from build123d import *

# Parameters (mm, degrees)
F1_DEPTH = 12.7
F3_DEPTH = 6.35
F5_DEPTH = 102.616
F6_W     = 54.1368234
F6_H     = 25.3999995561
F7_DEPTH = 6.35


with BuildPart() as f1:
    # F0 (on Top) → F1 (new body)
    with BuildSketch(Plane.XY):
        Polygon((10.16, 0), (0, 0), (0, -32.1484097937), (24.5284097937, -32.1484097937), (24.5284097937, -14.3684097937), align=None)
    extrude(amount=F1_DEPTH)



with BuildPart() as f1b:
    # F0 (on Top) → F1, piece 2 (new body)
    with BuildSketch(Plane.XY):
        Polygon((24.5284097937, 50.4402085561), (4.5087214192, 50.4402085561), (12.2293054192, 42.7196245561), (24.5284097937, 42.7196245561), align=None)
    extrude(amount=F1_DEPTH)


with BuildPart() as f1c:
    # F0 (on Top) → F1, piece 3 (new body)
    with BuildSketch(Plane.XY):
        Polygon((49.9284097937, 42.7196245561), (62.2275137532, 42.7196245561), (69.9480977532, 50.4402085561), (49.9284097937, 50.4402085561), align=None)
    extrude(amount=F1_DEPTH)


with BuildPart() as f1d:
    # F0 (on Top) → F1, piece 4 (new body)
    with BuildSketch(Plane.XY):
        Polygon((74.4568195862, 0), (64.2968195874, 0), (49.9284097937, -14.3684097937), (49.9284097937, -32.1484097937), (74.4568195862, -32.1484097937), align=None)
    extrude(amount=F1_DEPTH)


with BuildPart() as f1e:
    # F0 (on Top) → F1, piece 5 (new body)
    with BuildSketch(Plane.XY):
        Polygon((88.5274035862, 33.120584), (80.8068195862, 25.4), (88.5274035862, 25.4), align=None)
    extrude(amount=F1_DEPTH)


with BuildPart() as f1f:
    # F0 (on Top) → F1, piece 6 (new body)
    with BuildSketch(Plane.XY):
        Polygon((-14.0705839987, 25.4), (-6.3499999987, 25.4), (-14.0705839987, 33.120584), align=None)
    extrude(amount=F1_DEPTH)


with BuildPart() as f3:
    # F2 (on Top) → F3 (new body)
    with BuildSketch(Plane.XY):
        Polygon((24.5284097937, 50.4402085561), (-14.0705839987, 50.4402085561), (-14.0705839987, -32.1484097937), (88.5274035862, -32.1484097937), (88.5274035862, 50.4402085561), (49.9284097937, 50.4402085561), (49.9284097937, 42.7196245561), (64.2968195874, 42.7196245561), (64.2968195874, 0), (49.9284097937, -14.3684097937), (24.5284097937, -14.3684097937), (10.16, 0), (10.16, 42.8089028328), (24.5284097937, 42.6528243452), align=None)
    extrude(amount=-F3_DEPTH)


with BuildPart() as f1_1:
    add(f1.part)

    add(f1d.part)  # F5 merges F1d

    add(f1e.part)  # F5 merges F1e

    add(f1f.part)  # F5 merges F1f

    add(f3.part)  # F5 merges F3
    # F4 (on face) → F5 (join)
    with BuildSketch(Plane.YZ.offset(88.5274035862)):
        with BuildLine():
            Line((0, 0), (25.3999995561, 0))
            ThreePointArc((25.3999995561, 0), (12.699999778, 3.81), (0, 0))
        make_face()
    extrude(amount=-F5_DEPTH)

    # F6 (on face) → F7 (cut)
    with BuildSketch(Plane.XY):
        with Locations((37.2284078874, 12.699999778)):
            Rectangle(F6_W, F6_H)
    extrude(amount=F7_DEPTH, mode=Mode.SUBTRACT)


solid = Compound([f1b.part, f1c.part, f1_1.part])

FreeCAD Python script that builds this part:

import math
import FreeCAD as App
import Part
import Sketcher
from FreeCAD import Vector
Q = App.Units.Quantity

doc = App.newDocument("Part")
body = doc.addObject("PartDesign::Body", "Body")

sketch1 = doc.addObject("Sketcher::SketchObject", "Sketch")
body.addObject(sketch1)
sketch1.AttachmentSupport = (doc.XY_Plane, [""])
sketch1.MapMode = "FlatFace"
sketch1.addGeometry(Part.LineSegment(Vector(10, 0, 0), Vector(0, 0, 0)), False)
sketch1.addGeometry(Part.LineSegment(Vector(0, 0, 0), Vector(0, -32, 0)), False)
sketch1.addGeometry(Part.LineSegment(Vector(0, -32, 0), Vector(25, -32, 0)), False)
sketch1.addGeometry(Part.LineSegment(Vector(25, -32, 0), Vector(25, -14, 0)), False)
sketch1.addGeometry(Part.LineSegment(Vector(25, -14, 0), Vector(10, 0, 0)), False)
sketch1.addConstraint(Sketcher.Constraint("Coincident", 0, 2, 1, 1))
sketch1.addConstraint(Sketcher.Constraint("Coincident", 1, 2, 2, 1))
sketch1.addConstraint(Sketcher.Constraint("Coincident", 2, 2, 3, 1))
sketch1.addConstraint(Sketcher.Constraint("Coincident", 3, 2, 4, 1))
sketch1.addConstraint(Sketcher.Constraint("Coincident", 4, 2, 0, 1))
sketch1.addConstraint(Sketcher.Constraint("Horizontal", 0))
sketch1.addConstraint(Sketcher.Constraint("Vertical", 1))
sketch1.addConstraint(Sketcher.Constraint("Horizontal", 2))
sketch1.addConstraint(Sketcher.Constraint("Vertical", 3))
sketch1.addConstraint(Sketcher.Constraint("Coincident", 0, 2, -1, 1))
sketch1.addConstraint(Sketcher.Constraint("DistanceX", 0, 2, 0, 1, Q("0.4 in")))
sketch1.addConstraint(Sketcher.Constraint("DistanceY", 3, 1, 3, 2, Q("0.7 in")))
sketch1.addConstraint(Sketcher.Constraint("Angle", 4, Q("135 deg")))
sketch1.addConstraint(Sketcher.Constraint("Distance", 4, Q("0.8 in")))
pad1 = doc.addObject("PartDesign::Pad", "Pad")
body.addObject(pad1)
pad1.Profile = sketch1
pad1.Length = Q("0.5 in")
body2 = doc.addObject("PartDesign::Body", "Body001")

sketch2 = doc.addObject("Sketcher::SketchObject", "Sketch001")
body2.addObject(sketch2)
sketch2.AttachmentSupport = (doc.getObject("XY_Plane001"), [""])
sketch2.MapMode = "FlatFace"
sketch2.addGeometry(Part.LineSegment(Vector(25, 50, 0), Vector(5, 50, 0)), False)
sketch2.addGeometry(Part.LineSegment(Vector(5, 50, 0), Vector(12, 43, 0)), False)
sketch2.addGeometry(Part.LineSegment(Vector(12, 43, 0), Vector(25, 43, 0)), False)
sketch2.addGeometry(Part.LineSegment(Vector(25, 43, 0), Vector(25, 50, 0)), False)
sketch2.addConstraint(Sketcher.Constraint("Coincident", 0, 2, 1, 1))
sketch2.addConstraint(Sketcher.Constraint("Coincident", 1, 2, 2, 1))
sketch2.addConstraint(Sketcher.Constraint("Coincident", 2, 2, 3, 1))
sketch2.addConstraint(Sketcher.Constraint("Coincident", 3, 2, 0, 1))
sketch2.addConstraint(Sketcher.Constraint("Horizontal", 0))
sketch2.addConstraint(Sketcher.Constraint("Horizontal", 2))
sketch2.addConstraint(Sketcher.Constraint("Vertical", 3))
sketch2.addConstraint(Sketcher.Constraint("Angle", 1, Q("-45 deg")))
sketch2.addConstraint(Sketcher.Constraint("DistanceX", 0, 2, 0, 1, Q("20.019688 mm")))
sketch2.addConstraint(Sketcher.Constraint("DistanceX", 2, 1, 2, 2, Q("12.299104 mm")))
sketch2.addConstraint(Sketcher.Constraint("DistanceX", -1, 1, 0, 2, Q("4.508721 mm")))
sketch2.addConstraint(Sketcher.Constraint("DistanceY", -1, 1, 0, 2, Q("50.440209 mm")))
pad2 = doc.addObject("PartDesign::Pad", "Pad001")
body2.addObject(pad2)
pad2.Profile = sketch2
pad2.Length = Q("0.5 in")
body3 = doc.addObject("PartDesign::Body", "Body002")

sketch3 = doc.addObject("Sketcher::SketchObject", "Sketch002")
body3.addObject(sketch3)
sketch3.AttachmentSupport = (doc.getObject("XY_Plane002"), [""])
sketch3.MapMode = "FlatFace"
sketch3.addGeometry(Part.LineSegment(Vector(50, 43, 0), Vector(62, 43, 0)), False)
sketch3.addGeometry(Part.LineSegment(Vector(62, 43, 0), Vector(70, 50, 0)), False)
sketch3.addGeometry(Part.LineSegment(Vector(70, 50, 0), Vector(50, 50, 0)), False)
sketch3.addGeometry(Part.LineSegment(Vector(50, 50, 0), Vector(50, 43, 0)), False)
sketch3.addConstraint(Sketcher.Constraint("Coincident", 0, 2, 1, 1))
sketch3.addConstraint(Sketcher.Constraint("Coincident", 1, 2, 2, 1))
sketch3.addConstraint(Sketcher.Constraint("Coincident", 2, 2, 3, 1))
sketch3.addConstraint(Sketcher.Constraint("Coincident", 3, 2, 0, 1))
sketch3.addConstraint(Sketcher.Constraint("Horizontal", 0))
sketch3.addConstraint(Sketcher.Constraint("Horizontal", 2))
sketch3.addConstraint(Sketcher.Constraint("Vertical", 3))
sketch3.addConstraint(Sketcher.Constraint("Angle", 1, Q("45 deg")))
sketch3.addConstraint(Sketcher.Constraint("DistanceX", 0, 1, 0, 2, Q("12.299104 mm")))
sketch3.addConstraint(Sketcher.Constraint("DistanceX", 2, 2, 2, 1, Q("20.019688 mm")))
sketch3.addConstraint(Sketcher.Constraint("DistanceY", -1, 1, 1, 2, Q("50.440209 mm")))
sketch3.addConstraint(Sketcher.Constraint("DistanceX", -1, 1, 2, 2, Q("49.92841 mm")))
pad3 = doc.addObject("PartDesign::Pad", "Pad002")
body3.addObject(pad3)
pad3.Profile = sketch3
pad3.Length = Q("0.5 in")
body4 = doc.addObject("PartDesign::Body", "Body003")

sketch4 = doc.addObject("Sketcher::SketchObject", "Sketch003")
body4.addObject(sketch4)
sketch4.AttachmentSupport = (doc.getObject("XY_Plane003"), [""])
sketch4.MapMode = "FlatFace"
sketch4.addGeometry(Part.LineSegment(Vector(74, 0, 0), Vector(64, 0, 0)), False)
sketch4.addGeometry(Part.LineSegment(Vector(64, 0, 0), Vector(50, -14, 0)), False)
sketch4.addGeometry(Part.LineSegment(Vector(50, -14, 0), Vector(50, -32, 0)), False)
sketch4.addGeometry(Part.LineSegment(Vector(50, -32, 0), Vector(74, -32, 0)), False)
sketch4.addGeometry(Part.LineSegment(Vector(74, -32, 0), Vector(74, 0, 0)), False)
sketch4.addConstraint(Sketcher.Constraint("Coincident", 0, 2, 1, 1))
sketch4.addConstraint(Sketcher.Constraint("Coincident", 1, 2, 2, 1))
sketch4.addConstraint(Sketcher.Constraint("Coincident", 2, 2, 3, 1))
sketch4.addConstraint(Sketcher.Constraint("Coincident", 3, 2, 4, 1))
sketch4.addConstraint(Sketcher.Constraint("Coincident", 4, 2, 0, 1))
sketch4.addConstraint(Sketcher.Constraint("Horizontal", 0))
sketch4.addConstraint(Sketcher.Constraint("Vertical", 2))
sketch4.addConstraint(Sketcher.Constraint("Horizontal", 3))
sketch4.addConstraint(Sketcher.Constraint("Vertical", 4))
sketch4.addConstraint(Sketcher.Constraint("PointOnObject", 0, 2, -1))
sketch4.addConstraint(Sketcher.Constraint("DistanceX", 0, 2, 0, 1, Q("0.4 in")))
sketch4.addConstraint(Sketcher.Constraint("DistanceY", 2, 2, 2, 1, Q("0.7 in")))
sketch4.addConstraint(Sketcher.Constraint("Angle", 1, Q("-135 deg")))
sketch4.addConstraint(Sketcher.Constraint("Distance", 1, Q("0.8 in")))
sketch4.addConstraint(Sketcher.Constraint("DistanceX", -1, 1, 0, 2, Q("64.29682 mm")))
pad4 = doc.addObject("PartDesign::Pad", "Pad003")
body4.addObject(pad4)
pad4.Profile = sketch4
pad4.Length = Q("0.5 in")
body5 = doc.addObject("PartDesign::Body", "Body004")

sketch5 = doc.addObject("Sketcher::SketchObject", "Sketch004")
body5.addObject(sketch5)
sketch5.AttachmentSupport = (doc.getObject("XY_Plane004"), [""])
sketch5.MapMode = "FlatFace"
sketch5.addGeometry(Part.LineSegment(Vector(89, 33, 0), Vector(81, 25, 0)), False)
sketch5.addGeometry(Part.LineSegment(Vector(81, 25, 0), Vector(89, 25, 0)), False)
sketch5.addGeometry(Part.LineSegment(Vector(89, 25, 0), Vector(89, 33, 0)), False)
sketch5.addConstraint(Sketcher.Constraint("Coincident", 0, 2, 1, 1))
sketch5.addConstraint(Sketcher.Constraint("Coincident", 1, 2, 2, 1))
sketch5.addConstraint(Sketcher.Constraint("Coincident", 2, 2, 0, 1))
sketch5.addConstraint(Sketcher.Constraint("Horizontal", 1))
sketch5.addConstraint(Sketcher.Constraint("Vertical", 2))
sketch5.addConstraint(Sketcher.Constraint("Equal", 1, 2))
sketch5.addConstraint(Sketcher.Constraint("DistanceY", -1, 1, 0, 2, Q("1 in")))
sketch5.addConstraint(Sketcher.Constraint("DistanceX", 1, 1, 1, 2, Q("7.720584 mm")))
sketch5.addConstraint(Sketcher.Constraint("DistanceX", -1, 1, 0, 2, Q("80.80682 mm")))
pad5 = doc.addObject("PartDesign::Pad", "Pad004")
body5.addObject(pad5)
pad5.Profile = sketch5
pad5.Length = Q("0.5 in")
body6 = doc.addObject("PartDesign::Body", "Body005")

sketch6 = doc.addObject("Sketcher::SketchObject", "Sketch005")
body6.addObject(sketch6)
sketch6.AttachmentSupport = (doc.getObject("XY_Plane005"), [""])
sketch6.MapMode = "FlatFace"
sketch6.addGeometry(Part.LineSegment(Vector(-14, 25, 0), Vector(-6, 25, 0)), False)
sketch6.addGeometry(Part.LineSegment(Vector(-6, 25, 0), Vector(-14, 33, 0)), False)
sketch6.addGeometry(Part.LineSegment(Vector(-14, 33, 0), Vector(-14, 25, 0)), False)
sketch6.addConstraint(Sketcher.Constraint("Coincident", 0, 2, 1, 1))
sketch6.addConstraint(Sketcher.Constraint("Coincident", 1, 2, 2, 1))
sketch6.addConstraint(Sketcher.Constraint("Coincident", 2, 2, 0, 1))
sketch6.addConstraint(Sketcher.Constraint("Horizontal", 0))
sketch6.addConstraint(Sketcher.Constraint("Vertical", 2))
sketch6.addConstraint(Sketcher.Constraint("Equal", 0, 2))
sketch6.addConstraint(Sketcher.Constraint("DistanceY", -1, 1, 0, 2, Q("1 in")))
sketch6.addConstraint(Sketcher.Constraint("DistanceX", 0, 2, -1, 1, Q("0.25 in")))
sketch6.addConstraint(Sketcher.Constraint("DistanceX", 0, 1, 0, 2, Q("7.720584 mm")))
pad6 = doc.addObject("PartDesign::Pad", "Pad005")
body6.addObject(pad6)
pad6.Profile = sketch6
pad6.Length = Q("0.5 in")
body7 = doc.addObject("PartDesign::Body", "Body006")

sketch7 = doc.addObject("Sketcher::SketchObject", "Sketch006")
body7.addObject(sketch7)
sketch7.AttachmentSupport = (doc.getObject("XY_Plane006"), [""])
sketch7.MapMode = "FlatFace"
sketch7.addGeometry(Part.LineSegment(Vector(25, 50, 0), Vector(-14, 50, 0)), False)
sketch7.addGeometry(Part.LineSegment(Vector(-14, 50, 0), Vector(-14, -32, 0)), False)
sketch7.addGeometry(Part.LineSegment(Vector(-14, -32, 0), Vector(89, -32, 0)), False)
sketch7.addGeometry(Part.LineSegment(Vector(89, -32, 0), Vector(89, 50, 0)), False)
sketch7.addGeometry(Part.LineSegment(Vector(89, 50, 0), Vector(50, 50, 0)), False)
sketch7.addGeometry(Part.LineSegment(Vector(50, 50, 0), Vector(50, 43, 0)), False)
sketch7.addGeometry(Part.LineSegment(Vector(50, 43, 0), Vector(64, 43, 0)), False)
sketch7.addGeometry(Part.LineSegment(Vector(64, 43, 0), Vector(64, 0, 0)), False)
sketch7.addGeometry(Part.LineSegment(Vector(64, 0, 0), Vector(50, -14, 0)), False)
sketch7.addGeometry(Part.LineSegment(Vector(50, -14, 0), Vector(25, -14, 0)), False)
sketch7.addGeometry(Part.LineSegment(Vector(25, -14, 0), Vector(10, 0, 0)), False)
sketch7.addGeometry(Part.LineSegment(Vector(10, 0, 0), Vector(10, 43, 0)), False)
sketch7.addGeometry(Part.LineSegment(Vector(10, 43, 0), Vector(25, 43, 0)), False)
sketch7.addGeometry(Part.LineSegment(Vector(25, 43, 0), Vector(25, 50, 0)), False)
sketch7.addConstraint(Sketcher.Constraint("Coincident", 0, 2, 1, 1))
sketch7.addConstraint(Sketcher.Constraint("Coincident", 1, 2, 2, 1))
sketch7.addConstraint(Sketcher.Constraint("Coincident", 2, 2, 3, 1))
sketch7.addConstraint(Sketcher.Constraint("Coincident", 3, 2, 4, 1))
sketch7.addConstraint(Sketcher.Constraint("Coincident", 4, 2, 5, 1))
sketch7.addConstraint(Sketcher.Constraint("Coincident", 5, 2, 6, 1))
sketch7.addConstraint(Sketcher.Constraint("Coincident", 6, 2, 7, 1))
sketch7.addConstraint(Sketcher.Constraint("Coincident", 7, 2, 8, 1))
sketch7.addConstraint(Sketcher.Constraint("Coincident", 8, 2, 9, 1))
sketch7.addConstraint(Sketcher.Constraint("Coincident", 9, 2, 10, 1))
sketch7.addConstraint(Sketcher.Constraint("Coincident", 10, 2, 11, 1))
sketch7.addConstraint(Sketcher.Constraint("Coincident", 11, 2, 12, 1))
sketch7.addConstraint(Sketcher.Constraint("Coincident", 12, 2, 13, 1))
sketch7.addConstraint(Sketcher.Constraint("Coincident", 13, 2, 0, 1))
sketch7.addConstraint(Sketcher.Constraint("Horizontal", 0))
sketch7.addConstraint(Sketcher.Constraint("Vertical", 1))
sketch7.addConstraint(Sketcher.Constraint("Horizontal", 2))
sketch7.addConstraint(Sketcher.Constraint("Vertical", 3))
sketch7.addConstraint(Sketcher.Constraint("Horizontal", 4))
sketch7.addConstraint(Sketcher.Constraint("Vertical", 5))
sketch7.addConstraint(Sketcher.Constraint("Horizontal", 6))
sketch7.addConstraint(Sketcher.Constraint("Vertical", 7))
sketch7.addConstraint(Sketcher.Constraint("Horizontal", 9))
sketch7.addConstraint(Sketcher.Constraint("Vertical", 11))
sketch7.addConstraint(Sketcher.Constraint("Vertical", 13))
sketch7.addConstraint(Sketcher.Constraint("PointOnObject", 7, 2, -1))
sketch7.addConstraint(Sketcher.Constraint("PointOnObject", 10, 2, -1))
sketch7.addConstraint(Sketcher.Constraint("Perpendicular", 8, 10))
sketch7.addConstraint(Sketcher.Constraint("Horizontal", 0, 2, 3, 2))
sketch7.addConstraint(Sketcher.Constraint("Vertical", 5, 2, 8, 2))
sketch7.addConstraint(Sketcher.Constraint("Vertical", 9, 2, 12, 2))
sketch7.addConstraint(Sketcher.Constraint("Equal", 0, 4))
sketch7.addConstraint(Sketcher.Constraint("Equal", 8, 10))
sketch7.addConstraint(Sketcher.Constraint("DistanceX", 9, 2, 9, 1, Q("1 in")))
sketch7.addConstraint(Sketcher.Constraint("Distance", 8, Q("0.8 in")))
sketch7.addConstraint(Sketcher.Constraint("DistanceX", -1, 1, 10, 2, Q("0.4 in")))
sketch7.addConstraint(Sketcher.Constraint("DistanceY", 2, 2, 8, 2, Q("0.7 in")))
sketch7.addConstraint(Sketcher.Constraint("DistanceY", 1, 2, 1, 1, Q("82.588618 mm")))
sketch7.addConstraint(Sketcher.Constraint("DistanceY", 12, 2, 5, 2, Q("0.0668 mm")))
sketch7.addConstraint(Sketcher.Constraint("DistanceX", 0, 2, 0, 1, Q("38.598994 mm")))
sketch7.addConstraint(Sketcher.Constraint("DistanceY", 5, 2, 5, 1, Q("7.720584 mm")))
sketch7.addConstraint(Sketcher.Constraint("DistanceY", 11, 1, 11, 2, Q("42.808903 mm")))
pad7 = doc.addObject("PartDesign::Pad", "Pad006")
body7.addObject(pad7)
pad7.Profile = sketch7
pad7.Length = Q("0.25 in")
pad7.Reversed = True
body.AllowCompound = True
doc.recompute()

boolean = doc.addObject("PartDesign::Boolean", "Boolean")
body.addObject(boolean)
boolean.Type = "Fuse"
boolean.addObjects([body4])
doc.recompute()

boolean2 = doc.addObject("PartDesign::Boolean", "Boolean001")
body.addObject(boolean2)
boolean2.Type = "Fuse"
boolean2.addObjects([body5])
doc.recompute()

boolean3 = doc.addObject("PartDesign::Boolean", "Boolean002")
body.addObject(boolean3)
boolean3.Type = "Fuse"
boolean3.addObjects([body6])
doc.recompute()

boolean4 = doc.addObject("PartDesign::Boolean", "Boolean003")
body.addObject(boolean4)
boolean4.Type = "Fuse"
boolean4.addObjects([body7])

sketch8 = doc.addObject("Sketcher::SketchObject", "Sketch007")
body.addObject(sketch8)
sketch8.AttachmentSupport = (doc.YZ_Plane, [""])
sketch8.MapMode = "FlatFace"
sketch8.AttachmentOffset = App.Placement(Vector(0, 0, 88.527404), App.Rotation())
sketch8.addGeometry(Part.LineSegment(Vector(0, 0, 0), Vector(25, 0, 0)), False)
sketch8.addGeometry(Part.ArcOfCircle(Part.Circle(Vector(13, -19, 0), Vector(0, 0, 1), 23), math.radians(57), math.radians(123)), False)
sketch8.addConstraint(Sketcher.Constraint("Coincident", 0, 1, 1, 2))
sketch8.addConstraint(Sketcher.Constraint("Coincident", 1, 1, 0, 2))
sketch8.addConstraint(Sketcher.Constraint("Horizontal", 0))
sketch8.addConstraint(Sketcher.Constraint("Coincident", 0, 1, -1, 1))
sketch8.addConstraint(Sketcher.Constraint("DistanceX", 0, 1, 0, 2, Q("1 in")))
sketch8.addConstraint(Sketcher.Constraint("Radius", 1, Q("23.071666 mm")))
pad8 = doc.addObject("PartDesign::Pad", "Pad007")
body.addObject(pad8)
pad8.Profile = sketch8
pad8.Length = Q("4.04 in")
pad8.Reversed = True

sketch9 = doc.addObject("Sketcher::SketchObject", "Sketch008")
body.addObject(sketch9)
sketch9.AttachmentSupport = (doc.XY_Plane, [""])
sketch9.MapMode = "FlatFace"
sketch9.addGeometry(Part.LineSegment(Vector(10, 25, 0), Vector(10, 0, 0)), False)
sketch9.addGeometry(Part.LineSegment(Vector(10, 0, 0), Vector(64, 0, 0)), False)
sketch9.addGeometry(Part.LineSegment(Vector(64, 0, 0), Vector(64, 25, 0)), False)
sketch9.addGeometry(Part.LineSegment(Vector(64, 25, 0), Vector(10, 25, 0)), False)
sketch9.addConstraint(Sketcher.Constraint("Coincident", 0, 2, 1, 1))
sketch9.addConstraint(Sketcher.Constraint("Coincident", 1, 2, 2, 1))
sketch9.addConstraint(Sketcher.Constraint("Coincident", 2, 2, 3, 1))
sketch9.addConstraint(Sketcher.Constraint("Coincident", 3, 2, 0, 1))
sketch9.addConstraint(Sketcher.Constraint("Vertical", 0))
sketch9.addConstraint(Sketcher.Constraint("Horizontal", 1))
sketch9.addConstraint(Sketcher.Constraint("Vertical", 2))
sketch9.addConstraint(Sketcher.Constraint("Horizontal", 3))
sketch9.addConstraint(Sketcher.Constraint("PointOnObject", 0, 2, -1))
sketch9.addConstraint(Sketcher.Constraint("DistanceY", 0, 2, 0, 1, Q("1 in")))
sketch9.addConstraint(Sketcher.Constraint("DistanceX", -1, 1, 0, 2, Q("0.3999998 in")))
sketch9.addConstraint(Sketcher.Constraint("DistanceX", 1, 1, 1, 2, Q("54.136823 mm")))
pocket1 = doc.addObject("PartDesign::Pocket", "Pocket")
body.addObject(pocket1)
pocket1.Profile = sketch9
pocket1.Length = Q("0.25 in")
pocket1.Reversed = True

doc.recompute()
